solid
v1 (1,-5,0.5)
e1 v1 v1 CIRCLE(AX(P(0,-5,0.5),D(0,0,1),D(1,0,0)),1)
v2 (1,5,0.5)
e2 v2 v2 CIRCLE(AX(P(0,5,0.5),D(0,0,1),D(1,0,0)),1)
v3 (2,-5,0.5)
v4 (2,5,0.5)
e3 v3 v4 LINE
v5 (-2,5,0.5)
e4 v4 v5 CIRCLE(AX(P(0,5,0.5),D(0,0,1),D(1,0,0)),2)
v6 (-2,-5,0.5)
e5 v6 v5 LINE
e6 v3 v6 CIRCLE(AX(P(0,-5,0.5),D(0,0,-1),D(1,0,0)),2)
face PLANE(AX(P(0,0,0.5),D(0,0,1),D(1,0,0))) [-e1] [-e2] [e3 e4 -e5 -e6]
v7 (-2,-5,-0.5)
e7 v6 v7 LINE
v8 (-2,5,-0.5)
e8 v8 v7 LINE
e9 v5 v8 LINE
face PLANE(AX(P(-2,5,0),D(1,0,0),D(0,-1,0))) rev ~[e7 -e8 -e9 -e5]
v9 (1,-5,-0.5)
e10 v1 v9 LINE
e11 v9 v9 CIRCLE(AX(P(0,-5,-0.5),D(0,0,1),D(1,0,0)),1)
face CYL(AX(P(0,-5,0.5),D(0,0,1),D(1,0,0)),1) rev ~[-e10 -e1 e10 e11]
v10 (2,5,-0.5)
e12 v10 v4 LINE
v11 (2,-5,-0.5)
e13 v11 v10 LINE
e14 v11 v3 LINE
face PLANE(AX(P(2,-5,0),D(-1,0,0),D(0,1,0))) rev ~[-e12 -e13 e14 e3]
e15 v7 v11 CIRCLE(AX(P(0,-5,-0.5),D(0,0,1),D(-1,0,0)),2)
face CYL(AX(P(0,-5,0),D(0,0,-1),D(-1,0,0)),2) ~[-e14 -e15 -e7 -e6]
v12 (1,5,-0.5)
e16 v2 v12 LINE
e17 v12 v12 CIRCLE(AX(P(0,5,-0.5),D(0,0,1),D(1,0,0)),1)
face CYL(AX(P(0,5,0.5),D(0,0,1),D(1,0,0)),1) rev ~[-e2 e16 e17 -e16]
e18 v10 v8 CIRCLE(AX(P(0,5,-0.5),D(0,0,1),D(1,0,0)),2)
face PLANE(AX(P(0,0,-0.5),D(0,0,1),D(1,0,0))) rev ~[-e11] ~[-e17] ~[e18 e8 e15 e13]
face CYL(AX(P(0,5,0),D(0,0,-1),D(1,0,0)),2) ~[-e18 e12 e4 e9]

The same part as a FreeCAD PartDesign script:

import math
import FreeCAD as App
import Part
import Sketcher

V = App.Vector
Q = App.Units.Quantity


def add_polygon(sketch, points):
    """Adds a closed chain of lines whose ends are joined by coincident constraints."""
    first, n = sketch.GeometryCount, len(points)
    for a, b in zip(points, points[1:] + points[:1]):
        sketch.addGeometry(Part.LineSegment(App.Vector(*a, 0), App.Vector(*b, 0)), False)
    for i in range(n):
        sketch.addConstraint(Sketcher.Constraint("Coincident", first + i, 2, first + (i + 1) % n, 1))

doc = App.newDocument("Part")
body = doc.addObject("PartDesign::Body", "Body")

# Sketch on XY plane
sketch1 = body.newObject("Sketcher::SketchObject", "Sketch")
sketch1.AttachmentSupport = (doc.getObject("XY_Plane"), [""])
sketch1.MapMode = "FlatFace"
sketch1.addGeometry([
    Part.ArcOfCircle(Part.Circle(V(0, -5, 0), V(0, 0, 1), 2), math.radians(180), math.radians(360)),
    Part.LineSegment(V(2, -5, 0), V(2, 5, 0)),
    Part.ArcOfCircle(Part.Circle(V(0, 5, 0), V(0, 0, 1), 2), math.radians(0), math.radians(180)),
    Part.LineSegment(V(-2, 5, 0), V(-2, -5, 0)),
], False)
sketch1.addConstraint([
    Sketcher.Constraint("Tangent", 0, 2, 1, 1),
    Sketcher.Constraint("Tangent", 1, 2, 2, 1),
    Sketcher.Constraint("Tangent", 2, 2, 3, 1),
    Sketcher.Constraint("Tangent", 3, 2, 0, 1),
    Sketcher.Constraint("Vertical", 1),
    Sketcher.Constraint("Vertical", 3),
    Sketcher.Constraint("Symmetric", 0, 3, 2, 3, -1, 1),
    Sketcher.Constraint("Radius", 0, Q("2 mm")),
    Sketcher.Constraint("DistanceY", 1, 1, 1, 2, Q("10 mm")),
])
pad1 = body.newObject("PartDesign::Pad", "Pad")
pad1.Profile = sketch1
pad1.Length = 1
pad1.Midplane = True

# Sketch on XY plane
sketch2 = body.newObject("Sketcher::SketchObject", "Sketch001")
sketch2.AttachmentSupport = (doc.getObject("XY_Plane"), [""])
sketch2.MapMode = "FlatFace"
sketch2.addGeometry(Part.Circle(V(0, -5, 0), V(0, 0, 1), 0.8), False)
sketch2.addConstraint([
    Sketcher.Constraint("PointOnObject", 0, 3, -2),
    Sketcher.Constraint("Diameter", 0, Q("1.5 mm")),
    Sketcher.Constraint("DistanceY", 0, 3, -1, 1, Q("5 mm")),
])
pad2 = body.newObject("PartDesign::Pad", "Pad001")
pad2.Profile = sketch2
pad2.Length = 3
pad2.Midplane = True

# Sketch on XY plane
sketch3 = body.newObject("Sketcher::SketchObject", "Sketch002")
sketch3.AttachmentSupport = (doc.getObject("XY_Plane"), [""])
sketch3.MapMode = "FlatFace"
sketch3.addGeometry(Part.Circle(V(0, 5, 0), V(0, 0, 1), 0.8), False)
sketch3.addConstraint([
    Sketcher.Constraint("PointOnObject", 0, 3, -2),
    Sketcher.Constraint("Diameter", 0, Q("1.5 mm")),
    Sketcher.Constraint("DistanceY", -1, 1, 0, 3, Q("5 mm")),
])
pad3 = body.newObject("PartDesign::Pad", "Pad002")
pad3.Profile = sketch3
pad3.Length = 3
pad3.Midplane = True

# Sketch on YZ plane
sketch4 = body.newObject("Sketcher::SketchObject", "Sketch003")
sketch4.AttachmentSupport = (doc.getObject("YZ_Plane"), [""])
sketch4.MapMode = "FlatFace"
sketch4.AttachmentOffset = App.Placement(V(0, 0, 2), App.Rotation())
add_polygon(sketch4, [(-7, 0.5), (-2.6, 0.5), (-2.6, 2.8), (-7, 2.8)])  # lines 0-3
sketch4.addConstraint([
    Sketcher.Constraint("Horizontal", 0),
    Sketcher.Constraint("Vertical", 1),
    Sketcher.Constraint("Horizontal", 2),
    Sketcher.Constraint("Vertical", 3),
    Sketcher.Constraint("DistanceX", 2, 2, -1, 1, Q("7 mm")),
    Sketcher.Constraint("DistanceY", -1, 1, 0, 2, Q("0.5 mm")),
    Sketcher.Constraint("DistanceX", 0, 1, 0, 2, Q("4.406 mm")),
    Sketcher.Constraint("DistanceY", 1, 1, 1, 2, Q("2.346 mm")),
])
pocket1 = body.newObject("PartDesign::Pocket", "Pocket")
pocket1.Profile = sketch4
pocket1.Length = 10

# Sketch on XY plane
sketch5 = body.newObject("Sketcher::SketchObject", "Sketch004")
sketch5.AttachmentSupport = (doc.getObject("XY_Plane"), [""])
sketch5.MapMode = "FlatFace"
sketch5.AttachmentOffset = App.Placement(V(0, 0, -0.5), App.Rotation())
sketch5.addGeometry(Part.Circle(V(0, 5, 0), V(0, 0, 1), 0.8), False)
sketch5.addConstraint([
    Sketcher.Constraint("PointOnObject", 0, 3, -2),
    Sketcher.Constraint("Diameter", 0, Q("1.5 mm")),
    Sketcher.Constraint("DistanceY", -1, 1, 0, 3, Q("5 mm")),
])
pocket2 = body.newObject("PartDesign::Pocket", "Pocket001")
pocket2.Profile = sketch5
pocket2.Length = 10

# Sketch on XY plane
sketch6 = body.newObject("Sketcher::SketchObject", "Sketch005")
sketch6.AttachmentSupport = (doc.getObject("XY_Plane"), [""])
sketch6.MapMode = "FlatFace"
sketch6.AttachmentOffset = App.Placement(V(0, 0, 1.5), App.Rotation())
sketch6.addGeometry([
    Part.Circle(V(0, 5, 0), V(0, 0, 1), 0.8),
    Part.Circle(V(0, -5, 0), V(0, 0, 1), 0.8),
], False)
sketch6.addConstraint([
    Sketcher.Constraint("Equal", 0, 1),
    Sketcher.Constraint("Symmetric", 0, 3, 1, 3, -1, 1),
    Sketcher.Constraint("PointOnObject", 0, 3, -2),
    Sketcher.Constraint("Diameter", 0, Q("1.5 mm")),
    Sketcher.Constraint("DistanceY", -1, 1, 0, 3, Q("5 mm")),
])
pocket3 = body.newObject("PartDesign::Pocket", "Pocket002")
pocket3.Profile = sketch6
pocket3.Length = 10

# Sketch on XY plane
sketch7 = body.newObject("Sketcher::SketchObject", "Sketch006")
sketch7.AttachmentSupport = (doc.getObject("XY_Plane"), [""])
sketch7.MapMode = "FlatFace"
sketch7.AttachmentOffset = App.Placement(V(0, 0, 0.5), App.Rotation())
sketch7.addGeometry([
    Part.Circle(V(0, 5, 0), V(0, 0, 1), 1),
    Part.Circle(V(0, 5, 0), V(0, 0, 1), 0.8),
    Part.Circle(V(0, -5, 0), V(0, 0, 1), 1),
    Part.Circle(V(0, -5, 0), V(0, 0, 1), 0.8),
], False)
sketch7.addConstraint([
    Sketcher.Constraint("Coincident", 1, 3, 0, 3),
    Sketcher.Constraint("Coincident", 3, 3, 2, 3),
    Sketcher.Constraint("Equal", 0, 2),
    Sketcher.Constraint("Equal", 1, 3),
    Sketcher.Constraint("Symmetric", 0, 3, 2, 3, -1, 1),
    Sketcher.Constraint("PointOnObject", 0, 3, -2),
    Sketcher.Constraint("Diameter", 0, Q("2 mm")),
    Sketcher.Constraint("Diameter", 1, Q("1.5 mm")),
    Sketcher.Constraint("DistanceY", -1, 1, 0, 3, Q("5 mm")),
])
pocket4 = body.newObject("PartDesign::Pocket", "Pocket003")
pocket4.Profile = sketch7
pocket4.Length = 10

doc.recompute()
